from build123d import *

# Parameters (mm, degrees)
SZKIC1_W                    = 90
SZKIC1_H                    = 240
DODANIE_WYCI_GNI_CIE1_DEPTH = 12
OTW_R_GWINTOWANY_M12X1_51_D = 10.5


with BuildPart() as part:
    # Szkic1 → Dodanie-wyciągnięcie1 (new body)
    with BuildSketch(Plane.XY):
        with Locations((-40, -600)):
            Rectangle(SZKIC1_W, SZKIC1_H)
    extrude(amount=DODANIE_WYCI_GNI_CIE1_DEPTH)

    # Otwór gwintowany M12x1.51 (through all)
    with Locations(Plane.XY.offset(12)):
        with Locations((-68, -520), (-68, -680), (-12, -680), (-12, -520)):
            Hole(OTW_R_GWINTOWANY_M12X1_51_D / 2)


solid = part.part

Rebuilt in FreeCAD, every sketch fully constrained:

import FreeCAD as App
import Part
import Sketcher

V = App.Vector

doc = App.newDocument("Part")
body = doc.addObject("PartDesign::Body", "Body")

# Sketch on XY plane
sketch1 = body.newObject("Sketcher::SketchObject", "Sketch")
sketch1.AttachmentSupport = (doc.getObject("XY_Plane"), [""])
sketch1.MapMode = "FlatFace"
sketch1.addGeometry([
    Part.LineSegment(V(-85, -480, 0), V(-85, -720, 0)),
    Part.LineSegment(V(-85, -720, 0), V(5, -720, 0)),
    Part.LineSegment(V(5, -720, 0), V(5, -480, 0)),
    Part.LineSegment(V(5, -480, 0), V(-85, -480, 0)),
], False)
sketch1.addConstraint([
    Sketcher.Constraint("Coincident", 0, 2, 1, 1),
    Sketcher.Constraint("Coincident", 1, 2, 2, 1),
    Sketcher.Constraint("Coincident", 2, 2, 3, 1),
    Sketcher.Constraint("Coincident", 3, 2, 0, 1),
    Sketcher.Constraint("Vertical", 0),
    Sketcher.Constraint("Horizontal", 1),
    Sketcher.Constraint("Vertical", 2),
    Sketcher.Constraint("Horizontal", 3),
    Sketcher.Constraint("DistanceX", 1, 1, 1, 2, 90.0),
    Sketcher.Constraint("DistanceY", 0, 2, 0, 1, 240.0),
    Sketcher.Constraint("DistanceX", 0, 2, -1, 1, 85.0),
    Sketcher.Constraint("DistanceY", 0, 2, -1, 1, 720.0),
])
pad1 = body.newObject("PartDesign::Pad", "Pad")
pad1.Profile = sketch1
pad1.Length = 12

# Sketch on XY plane
sketch2 = body.newObject("Sketcher::SketchObject", "Sketch001")
sketch2.AttachmentSupport = (doc.getObject("XY_Plane"), [""])
sketch2.MapMode = "FlatFace"
sketch2.AttachmentOffset = App.Placement(V(0, 0, 12), App.Rotation())
sketch2.addGeometry([
    Part.Circle(V(-68, -520, 0), V(0, 0, 1), 5.25),
    Part.Circle(V(-68, -680, 0), V(0, 0, 1), 5.25),
    Part.Circle(V(-12, -680, 0), V(0, 0, 1), 5.25),
    Part.Circle(V(-12, -520, 0), V(0, 0, 1), 5.25),
], False)
sketch2.addConstraint([
    Sketcher.Constraint("Equal", 0, 1),
    Sketcher.Constraint("Equal", 1, 2),
    Sketcher.Constraint("Equal", 2, 3),
    Sketcher.Constraint("Horizontal", 1, 3, 2, 3),
    Sketcher.Constraint("Horizontal", 0, 3, 3, 3),
    Sketcher.Constraint("Vertical", 0, 3, 1, 3),
    Sketcher.Constraint("Vertical", 2, 3, 3, 3),
    Sketcher.Constraint("Diameter", 0, 10.5),
    Sketcher.Constraint("DistanceX", 0, 3, -1, 1, 68.0),
    Sketcher.Constraint("DistanceY", 0, 3, -1, 1, 520.0),
    Sketcher.Constraint("DistanceY", 1, 3, -1, 1, 680.0),
    Sketcher.Constraint("DistanceX", 2, 3, -1, 1, 12.0),
])
doc.recompute()
hole = body.newObject("PartDesign::Hole", "Hole")
hole.Profile = sketch2
hole.ThreadType = "None"
hole.Diameter = 10.5
hole.DepthType = "ThroughAll"

doc.recompute()
